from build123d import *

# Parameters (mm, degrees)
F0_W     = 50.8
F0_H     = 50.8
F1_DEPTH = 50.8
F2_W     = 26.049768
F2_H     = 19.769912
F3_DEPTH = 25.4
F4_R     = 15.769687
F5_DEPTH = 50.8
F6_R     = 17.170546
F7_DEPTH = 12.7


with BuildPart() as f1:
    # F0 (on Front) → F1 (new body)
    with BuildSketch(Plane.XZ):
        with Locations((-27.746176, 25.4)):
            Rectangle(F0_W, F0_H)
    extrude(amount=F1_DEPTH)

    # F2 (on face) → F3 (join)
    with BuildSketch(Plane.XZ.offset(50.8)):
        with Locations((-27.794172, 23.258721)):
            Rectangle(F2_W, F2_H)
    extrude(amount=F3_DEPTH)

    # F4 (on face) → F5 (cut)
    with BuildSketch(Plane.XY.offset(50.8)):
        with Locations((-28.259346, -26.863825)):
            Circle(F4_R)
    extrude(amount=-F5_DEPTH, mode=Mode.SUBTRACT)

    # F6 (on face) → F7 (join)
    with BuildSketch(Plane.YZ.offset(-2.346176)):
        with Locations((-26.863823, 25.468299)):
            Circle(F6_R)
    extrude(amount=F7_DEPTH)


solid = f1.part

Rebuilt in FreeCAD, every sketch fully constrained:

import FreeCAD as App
import Part
import Sketcher
from FreeCAD import Vector
Q = App.Units.Quantity

doc = App.newDocument("Part")
body = doc.addObject("PartDesign::Body", "Body")

# Sketch on XZ plane
sketch1 = doc.addObject("Sketcher::SketchObject", "Sketch")
body.addObject(sketch1)
sketch1.AttachmentSupport = (doc.XZ_Plane, [""])
sketch1.MapMode = "FlatFace"
sketch1.addGeometry(Part.LineSegment(Vector(-53, 51, 0), Vector(-53, 0, 0)), False)
sketch1.addGeometry(Part.LineSegment(Vector(-53, 0, 0), Vector(-2, 0, 0)), False)
sketch1.addGeometry(Part.LineSegment(Vector(-2, 0, 0), Vector(-2, 51, 0)), False)
sketch1.addGeometry(Part.LineSegment(Vector(-2, 51, 0), Vector(-53, 51, 0)), False)
sketch1.addConstraint(Sketcher.Constraint("Coincident", 0, 2, 1, 1))
sketch1.addConstraint(Sketcher.Constraint("Coincident", 1, 2, 2, 1))
sketch1.addConstraint(Sketcher.Constraint("Coincident", 2, 2, 3, 1))
sketch1.addConstraint(Sketcher.Constraint("Coincident", 3, 2, 0, 1))
sketch1.addConstraint(Sketcher.Constraint("Vertical", 0))
sketch1.addConstraint(Sketcher.Constraint("Horizontal", 1))
sketch1.addConstraint(Sketcher.Constraint("Vertical", 2))
sketch1.addConstraint(Sketcher.Constraint("Horizontal", 3))
sketch1.addConstraint(Sketcher.Constraint("PointOnObject", 0, 2, -1))
sketch1.addConstraint(Sketcher.Constraint("Equal", 3, 0))
sketch1.addConstraint(Sketcher.Constraint("DistanceX", 1, 1, 1, 2, Q("2 in")))
sketch1.addConstraint(Sketcher.Constraint("DistanceX", 0, 2, -1, 1, 53.146176))
pad1 = doc.addObject("PartDesign::Pad", "Pad")
body.addObject(pad1)
pad1.Profile = sketch1
pad1.Length = Q("2 in")

# Sketch on XZ plane
sketch2 = doc.addObject("Sketcher::SketchObject", "Sketch001")
body.addObject(sketch2)
sketch2.AttachmentSupport = (doc.XZ_Plane, [""])
sketch2.MapMode = "FlatFace"
sketch2.AttachmentOffset = App.Placement(Vector(0, 0, 2 * 25.4), App.Rotation())
sketch2.addGeometry(Part.LineSegment(Vector(-41, 33, 0), Vector(-41, 13, 0)), False)
sketch2.addGeometry(Part.LineSegment(Vector(-41, 13, 0), Vector(-15, 13, 0)), False)
sketch2.addGeometry(Part.LineSegment(Vector(-15, 13, 0), Vector(-15, 33, 0)), False)
sketch2.addGeometry(Part.LineSegment(Vector(-15, 33, 0), Vector(-41, 33, 0)), False)
sketch2.addConstraint(Sketcher.Constraint("Coincident", 0, 2, 1, 1))
sketch2.addConstraint(Sketcher.Constraint("Coincident", 1, 2, 2, 1))
sketch2.addConstraint(Sketcher.Constraint("Coincident", 2, 2, 3, 1))
sketch2.addConstraint(Sketcher.Constraint("Coincident", 3, 2, 0, 1))
sketch2.addConstraint(Sketcher.Constraint("Vertical", 0))
sketch2.addConstraint(Sketcher.Constraint("Horizontal", 1))
sketch2.addConstraint(Sketcher.Constraint("Vertical", 2))
sketch2.addConstraint(Sketcher.Constraint("Horizontal", 3))
sketch2.addConstraint(Sketcher.Constraint("DistanceX", 1, 1, 1, 2, 26.049768))
sketch2.addConstraint(Sketcher.Constraint("DistanceY", 0, 2, 0, 1, 19.769912))
sketch2.addConstraint(Sketcher.Constraint("DistanceX", 0, 2, -1, 1, 40.819056))
sketch2.addConstraint(Sketcher.Constraint("DistanceY", -1, 1, 0, 2, 13.373765))
pad2 = doc.addObject("PartDesign::Pad", "Pad001")
body.addObject(pad2)
pad2.Profile = sketch2
pad2.Length = Q("1 in")

# Sketch on XY plane
sketch3 = doc.addObject("Sketcher::SketchObject", "Sketch002")
body.addObject(sketch3)
sketch3.AttachmentSupport = (doc.XY_Plane, [""])
sketch3.MapMode = "FlatFace"
sketch3.AttachmentOffset = App.Placement(Vector(0, 0, 2 * 25.4), App.Rotation())
sketch3.addGeometry(Part.Circle(Vector(-28, -27, 0), Vector(0, 0, 1), 16), False)
sketch3.addConstraint(Sketcher.Constraint("Diameter", 0, 31.539374))
sketch3.addConstraint(Sketcher.Constraint("DistanceX", 0, 3, -1, 1, 28.259346))
sketch3.addConstraint(Sketcher.Constraint("DistanceY", 0, 3, -1, 1, 26.863825))
pocket1 = doc.addObject("PartDesign::Pocket", "Pocket")
body.addObject(pocket1)
pocket1.Profile = sketch3
pocket1.Length = Q("2 in")

# Sketch on YZ plane
sketch4 = doc.addObject("Sketcher::SketchObject", "Sketch003")
body.addObject(sketch4)
sketch4.AttachmentSupport = (doc.YZ_Plane, [""])
sketch4.MapMode = "FlatFace"
sketch4.AttachmentOffset = App.Placement(Vector(0, 0, -2.346176), App.Rotation())
sketch4.addGeometry(Part.Circle(Vector(-27, 25, 0), Vector(0, 0, 1), 17), False)
sketch4.addConstraint(Sketcher.Constraint("Diameter", 0, 34.341092))
sketch4.addConstraint(Sketcher.Constraint("DistanceY", -1, 1, 0, 3, 25.468299))
sketch4.addConstraint(Sketcher.Constraint("DistanceX", 0, 3, -1, 1, 26.863823))
pad3 = doc.addObject("PartDesign::Pad", "Pad002")
body.addObject(pad3)
pad3.Profile = sketch4
pad3.Length = Q("0.5 in")

doc.recompute()
